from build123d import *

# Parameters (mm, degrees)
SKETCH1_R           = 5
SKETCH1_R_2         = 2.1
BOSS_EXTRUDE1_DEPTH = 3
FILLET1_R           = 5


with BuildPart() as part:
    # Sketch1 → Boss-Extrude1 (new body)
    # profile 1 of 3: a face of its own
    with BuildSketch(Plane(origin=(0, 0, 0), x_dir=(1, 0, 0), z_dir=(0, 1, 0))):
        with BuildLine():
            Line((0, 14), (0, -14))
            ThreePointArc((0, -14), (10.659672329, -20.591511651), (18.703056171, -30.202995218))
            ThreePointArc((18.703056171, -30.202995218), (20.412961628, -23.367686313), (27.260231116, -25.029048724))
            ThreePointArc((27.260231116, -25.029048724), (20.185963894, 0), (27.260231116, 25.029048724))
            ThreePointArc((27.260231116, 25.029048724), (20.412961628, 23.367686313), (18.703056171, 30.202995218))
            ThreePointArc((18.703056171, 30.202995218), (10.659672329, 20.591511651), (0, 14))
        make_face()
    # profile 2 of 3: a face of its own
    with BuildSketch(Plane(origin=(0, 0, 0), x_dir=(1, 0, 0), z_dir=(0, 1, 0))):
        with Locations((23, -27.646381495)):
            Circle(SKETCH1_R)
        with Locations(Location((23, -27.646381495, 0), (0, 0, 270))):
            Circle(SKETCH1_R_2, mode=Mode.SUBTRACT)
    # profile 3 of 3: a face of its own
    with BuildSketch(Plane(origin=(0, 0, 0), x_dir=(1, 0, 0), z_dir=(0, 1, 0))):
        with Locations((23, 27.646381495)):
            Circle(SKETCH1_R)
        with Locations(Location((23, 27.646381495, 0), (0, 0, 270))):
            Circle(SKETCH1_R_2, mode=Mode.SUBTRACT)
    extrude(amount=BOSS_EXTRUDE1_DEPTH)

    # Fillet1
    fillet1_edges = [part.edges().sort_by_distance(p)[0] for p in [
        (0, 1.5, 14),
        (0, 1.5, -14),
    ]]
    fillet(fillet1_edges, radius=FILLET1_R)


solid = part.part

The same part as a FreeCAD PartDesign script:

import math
import FreeCAD as App
import Part
import Sketcher


def edges_at(feature, points):
    """Names of the edges that pass closest to the given points."""
    edges = feature.Shape.Edges
    near = lambda p: min(range(len(edges)), key=lambda i: edges[i].distToShape(Part.Vertex(*p))[0])
    return sorted({f"Edge{near(p) + 1}" for p in points})

doc = App.newDocument("Part")
params = doc.addObject("Spreadsheet::Sheet", "Params")
for row, (alias, value) in enumerate([
    ("sketch1_radius", "5 mm"),
    ("sketch1_diameter", "4.2 mm"),
    ("sketch1_height", "28 mm"),
    ("pad1_length", "3 mm"),
    ("fillet_radius", "5 mm"),
], start=1):
    params.set(f"A{row}", alias)
    params.set(f"B{row}", "=" + value)
    params.setAlias(f"B{row}", alias)

body = doc.addObject("PartDesign::Body", "Body")

# Sketch on XZ plane
sketch1 = doc.addObject("Sketcher::SketchObject", "Sketch")
body.addObject(sketch1)
sketch1.AttachmentSupport = (doc.XZ_Plane, [""])
sketch1.MapMode = "FlatFace"
sketch1.addGeometry(Part.LineSegment(App.Vector(0, -14, 0), App.Vector(0, 14, 0)), False)
sketch1.addGeometry(Part.ArcOfCircle(Part.Circle(App.Vector(-15.1, 50.3, 0), App.Vector(0, 0, 1), 39.3), math.radians(-67), math.radians(-31)), False)
sketch1.addGeometry(Part.ArcOfCircle(Part.Circle(App.Vector(23, 27.6, 0), App.Vector(0, 0, 1), 5), math.radians(-32), math.radians(149)), False)
sketch1.addGeometry(Part.ArcOfCircle(Part.Circle(App.Vector(68, 0, 0), App.Vector(0, 0, 1), 47.8), math.radians(148), math.radians(212)), False)
sketch1.addGeometry(Part.ArcOfCircle(Part.Circle(App.Vector(23, -27.6, 0), App.Vector(0, 0, 1), 5), math.radians(-149), math.radians(32)), False)
sketch1.addGeometry(Part.ArcOfCircle(Part.Circle(App.Vector(-15.1, -50.3, 0), App.Vector(0, 0, 1), 39.3), math.radians(31), math.radians(67)), False)
sketch1.addGeometry(Part.Circle(App.Vector(23, 27.6, 0), App.Vector(0, 0, 1), 2.1), False)
sketch1.addGeometry(Part.Circle(App.Vector(23, -27.6, 0), App.Vector(0, 0, 1), 2.1), False)
sketch1.addConstraint(Sketcher.Constraint("Coincident", 0, 2, 1, 1))
sketch1.addConstraint(Sketcher.Constraint("Tangent", 1, 2, 2, 2))
sketch1.addConstraint(Sketcher.Constraint("Tangent", 2, 1, 3, 1))
sketch1.addConstraint(Sketcher.Constraint("Tangent", 3, 2, 4, 2))
sketch1.addConstraint(Sketcher.Constraint("Tangent", 4, 1, 5, 1))
sketch1.addConstraint(Sketcher.Constraint("Coincident", 5, 2, 0, 1))
sketch1.addConstraint(Sketcher.Constraint("Vertical", 0))
sketch1.addConstraint(Sketcher.Constraint("Coincident", 6, 3, 2, 3))
sketch1.addConstraint(Sketcher.Constraint("Coincident", 7, 3, 4, 3))
sketch1.addConstraint(Sketcher.Constraint("Equal", 2, 4))
sketch1.addConstraint(Sketcher.Constraint("Equal", 1, 5))
sketch1.addConstraint(Sketcher.Constraint("Equal", 6, 7))
sketch1.addConstraint(Sketcher.Constraint("Symmetric", 0, 2, 5, 2, -1, 1))
sketch1.addConstraint(Sketcher.Constraint("Symmetric", 2, 3, 4, 3, -1))
sketch1.addConstraint(Sketcher.Constraint("Radius", 2, 5.0))
sketch1.addConstraint(Sketcher.Constraint("Diameter", 6, 4.2))
sketch1.addConstraint(Sketcher.Constraint("DistanceY", 0, 1, 0, 2, 28.0))
sketch1.addConstraint(Sketcher.Constraint("DistanceX", -1, 1, 2, 3, 23.0))
sketch1.addConstraint(Sketcher.Constraint("DistanceX", -1, 1, 3, 3, 68.0))
sketch1.addConstraint(Sketcher.Constraint("Radius", 1, 39.31194))
sketch1.addConstraint(Sketcher.Constraint("Radius", 3, 47.814036))
sketch1.setExpression("Constraints[14]", "Params.sketch1_radius")
sketch1.setExpression("Constraints[15]", "Params.sketch1_diameter")
sketch1.setExpression("Constraints[16]", "Params.sketch1_height")
pad1 = doc.addObject("PartDesign::Pad", "Pad")
body.addObject(pad1)
pad1.Profile = sketch1
pad1.setExpression("Length", "Params.pad1_length")
pad1.Reversed = True
doc.recompute()

fillet = doc.addObject("PartDesign::Fillet", "Fillet")
body.addObject(fillet)
fillet.Base = (pad1, edges_at(pad1, [(0, 1.5, 14), (0, 1.5, -14)]))
fillet.setExpression("Radius", "Params.fillet_radius")

doc.recompute()
